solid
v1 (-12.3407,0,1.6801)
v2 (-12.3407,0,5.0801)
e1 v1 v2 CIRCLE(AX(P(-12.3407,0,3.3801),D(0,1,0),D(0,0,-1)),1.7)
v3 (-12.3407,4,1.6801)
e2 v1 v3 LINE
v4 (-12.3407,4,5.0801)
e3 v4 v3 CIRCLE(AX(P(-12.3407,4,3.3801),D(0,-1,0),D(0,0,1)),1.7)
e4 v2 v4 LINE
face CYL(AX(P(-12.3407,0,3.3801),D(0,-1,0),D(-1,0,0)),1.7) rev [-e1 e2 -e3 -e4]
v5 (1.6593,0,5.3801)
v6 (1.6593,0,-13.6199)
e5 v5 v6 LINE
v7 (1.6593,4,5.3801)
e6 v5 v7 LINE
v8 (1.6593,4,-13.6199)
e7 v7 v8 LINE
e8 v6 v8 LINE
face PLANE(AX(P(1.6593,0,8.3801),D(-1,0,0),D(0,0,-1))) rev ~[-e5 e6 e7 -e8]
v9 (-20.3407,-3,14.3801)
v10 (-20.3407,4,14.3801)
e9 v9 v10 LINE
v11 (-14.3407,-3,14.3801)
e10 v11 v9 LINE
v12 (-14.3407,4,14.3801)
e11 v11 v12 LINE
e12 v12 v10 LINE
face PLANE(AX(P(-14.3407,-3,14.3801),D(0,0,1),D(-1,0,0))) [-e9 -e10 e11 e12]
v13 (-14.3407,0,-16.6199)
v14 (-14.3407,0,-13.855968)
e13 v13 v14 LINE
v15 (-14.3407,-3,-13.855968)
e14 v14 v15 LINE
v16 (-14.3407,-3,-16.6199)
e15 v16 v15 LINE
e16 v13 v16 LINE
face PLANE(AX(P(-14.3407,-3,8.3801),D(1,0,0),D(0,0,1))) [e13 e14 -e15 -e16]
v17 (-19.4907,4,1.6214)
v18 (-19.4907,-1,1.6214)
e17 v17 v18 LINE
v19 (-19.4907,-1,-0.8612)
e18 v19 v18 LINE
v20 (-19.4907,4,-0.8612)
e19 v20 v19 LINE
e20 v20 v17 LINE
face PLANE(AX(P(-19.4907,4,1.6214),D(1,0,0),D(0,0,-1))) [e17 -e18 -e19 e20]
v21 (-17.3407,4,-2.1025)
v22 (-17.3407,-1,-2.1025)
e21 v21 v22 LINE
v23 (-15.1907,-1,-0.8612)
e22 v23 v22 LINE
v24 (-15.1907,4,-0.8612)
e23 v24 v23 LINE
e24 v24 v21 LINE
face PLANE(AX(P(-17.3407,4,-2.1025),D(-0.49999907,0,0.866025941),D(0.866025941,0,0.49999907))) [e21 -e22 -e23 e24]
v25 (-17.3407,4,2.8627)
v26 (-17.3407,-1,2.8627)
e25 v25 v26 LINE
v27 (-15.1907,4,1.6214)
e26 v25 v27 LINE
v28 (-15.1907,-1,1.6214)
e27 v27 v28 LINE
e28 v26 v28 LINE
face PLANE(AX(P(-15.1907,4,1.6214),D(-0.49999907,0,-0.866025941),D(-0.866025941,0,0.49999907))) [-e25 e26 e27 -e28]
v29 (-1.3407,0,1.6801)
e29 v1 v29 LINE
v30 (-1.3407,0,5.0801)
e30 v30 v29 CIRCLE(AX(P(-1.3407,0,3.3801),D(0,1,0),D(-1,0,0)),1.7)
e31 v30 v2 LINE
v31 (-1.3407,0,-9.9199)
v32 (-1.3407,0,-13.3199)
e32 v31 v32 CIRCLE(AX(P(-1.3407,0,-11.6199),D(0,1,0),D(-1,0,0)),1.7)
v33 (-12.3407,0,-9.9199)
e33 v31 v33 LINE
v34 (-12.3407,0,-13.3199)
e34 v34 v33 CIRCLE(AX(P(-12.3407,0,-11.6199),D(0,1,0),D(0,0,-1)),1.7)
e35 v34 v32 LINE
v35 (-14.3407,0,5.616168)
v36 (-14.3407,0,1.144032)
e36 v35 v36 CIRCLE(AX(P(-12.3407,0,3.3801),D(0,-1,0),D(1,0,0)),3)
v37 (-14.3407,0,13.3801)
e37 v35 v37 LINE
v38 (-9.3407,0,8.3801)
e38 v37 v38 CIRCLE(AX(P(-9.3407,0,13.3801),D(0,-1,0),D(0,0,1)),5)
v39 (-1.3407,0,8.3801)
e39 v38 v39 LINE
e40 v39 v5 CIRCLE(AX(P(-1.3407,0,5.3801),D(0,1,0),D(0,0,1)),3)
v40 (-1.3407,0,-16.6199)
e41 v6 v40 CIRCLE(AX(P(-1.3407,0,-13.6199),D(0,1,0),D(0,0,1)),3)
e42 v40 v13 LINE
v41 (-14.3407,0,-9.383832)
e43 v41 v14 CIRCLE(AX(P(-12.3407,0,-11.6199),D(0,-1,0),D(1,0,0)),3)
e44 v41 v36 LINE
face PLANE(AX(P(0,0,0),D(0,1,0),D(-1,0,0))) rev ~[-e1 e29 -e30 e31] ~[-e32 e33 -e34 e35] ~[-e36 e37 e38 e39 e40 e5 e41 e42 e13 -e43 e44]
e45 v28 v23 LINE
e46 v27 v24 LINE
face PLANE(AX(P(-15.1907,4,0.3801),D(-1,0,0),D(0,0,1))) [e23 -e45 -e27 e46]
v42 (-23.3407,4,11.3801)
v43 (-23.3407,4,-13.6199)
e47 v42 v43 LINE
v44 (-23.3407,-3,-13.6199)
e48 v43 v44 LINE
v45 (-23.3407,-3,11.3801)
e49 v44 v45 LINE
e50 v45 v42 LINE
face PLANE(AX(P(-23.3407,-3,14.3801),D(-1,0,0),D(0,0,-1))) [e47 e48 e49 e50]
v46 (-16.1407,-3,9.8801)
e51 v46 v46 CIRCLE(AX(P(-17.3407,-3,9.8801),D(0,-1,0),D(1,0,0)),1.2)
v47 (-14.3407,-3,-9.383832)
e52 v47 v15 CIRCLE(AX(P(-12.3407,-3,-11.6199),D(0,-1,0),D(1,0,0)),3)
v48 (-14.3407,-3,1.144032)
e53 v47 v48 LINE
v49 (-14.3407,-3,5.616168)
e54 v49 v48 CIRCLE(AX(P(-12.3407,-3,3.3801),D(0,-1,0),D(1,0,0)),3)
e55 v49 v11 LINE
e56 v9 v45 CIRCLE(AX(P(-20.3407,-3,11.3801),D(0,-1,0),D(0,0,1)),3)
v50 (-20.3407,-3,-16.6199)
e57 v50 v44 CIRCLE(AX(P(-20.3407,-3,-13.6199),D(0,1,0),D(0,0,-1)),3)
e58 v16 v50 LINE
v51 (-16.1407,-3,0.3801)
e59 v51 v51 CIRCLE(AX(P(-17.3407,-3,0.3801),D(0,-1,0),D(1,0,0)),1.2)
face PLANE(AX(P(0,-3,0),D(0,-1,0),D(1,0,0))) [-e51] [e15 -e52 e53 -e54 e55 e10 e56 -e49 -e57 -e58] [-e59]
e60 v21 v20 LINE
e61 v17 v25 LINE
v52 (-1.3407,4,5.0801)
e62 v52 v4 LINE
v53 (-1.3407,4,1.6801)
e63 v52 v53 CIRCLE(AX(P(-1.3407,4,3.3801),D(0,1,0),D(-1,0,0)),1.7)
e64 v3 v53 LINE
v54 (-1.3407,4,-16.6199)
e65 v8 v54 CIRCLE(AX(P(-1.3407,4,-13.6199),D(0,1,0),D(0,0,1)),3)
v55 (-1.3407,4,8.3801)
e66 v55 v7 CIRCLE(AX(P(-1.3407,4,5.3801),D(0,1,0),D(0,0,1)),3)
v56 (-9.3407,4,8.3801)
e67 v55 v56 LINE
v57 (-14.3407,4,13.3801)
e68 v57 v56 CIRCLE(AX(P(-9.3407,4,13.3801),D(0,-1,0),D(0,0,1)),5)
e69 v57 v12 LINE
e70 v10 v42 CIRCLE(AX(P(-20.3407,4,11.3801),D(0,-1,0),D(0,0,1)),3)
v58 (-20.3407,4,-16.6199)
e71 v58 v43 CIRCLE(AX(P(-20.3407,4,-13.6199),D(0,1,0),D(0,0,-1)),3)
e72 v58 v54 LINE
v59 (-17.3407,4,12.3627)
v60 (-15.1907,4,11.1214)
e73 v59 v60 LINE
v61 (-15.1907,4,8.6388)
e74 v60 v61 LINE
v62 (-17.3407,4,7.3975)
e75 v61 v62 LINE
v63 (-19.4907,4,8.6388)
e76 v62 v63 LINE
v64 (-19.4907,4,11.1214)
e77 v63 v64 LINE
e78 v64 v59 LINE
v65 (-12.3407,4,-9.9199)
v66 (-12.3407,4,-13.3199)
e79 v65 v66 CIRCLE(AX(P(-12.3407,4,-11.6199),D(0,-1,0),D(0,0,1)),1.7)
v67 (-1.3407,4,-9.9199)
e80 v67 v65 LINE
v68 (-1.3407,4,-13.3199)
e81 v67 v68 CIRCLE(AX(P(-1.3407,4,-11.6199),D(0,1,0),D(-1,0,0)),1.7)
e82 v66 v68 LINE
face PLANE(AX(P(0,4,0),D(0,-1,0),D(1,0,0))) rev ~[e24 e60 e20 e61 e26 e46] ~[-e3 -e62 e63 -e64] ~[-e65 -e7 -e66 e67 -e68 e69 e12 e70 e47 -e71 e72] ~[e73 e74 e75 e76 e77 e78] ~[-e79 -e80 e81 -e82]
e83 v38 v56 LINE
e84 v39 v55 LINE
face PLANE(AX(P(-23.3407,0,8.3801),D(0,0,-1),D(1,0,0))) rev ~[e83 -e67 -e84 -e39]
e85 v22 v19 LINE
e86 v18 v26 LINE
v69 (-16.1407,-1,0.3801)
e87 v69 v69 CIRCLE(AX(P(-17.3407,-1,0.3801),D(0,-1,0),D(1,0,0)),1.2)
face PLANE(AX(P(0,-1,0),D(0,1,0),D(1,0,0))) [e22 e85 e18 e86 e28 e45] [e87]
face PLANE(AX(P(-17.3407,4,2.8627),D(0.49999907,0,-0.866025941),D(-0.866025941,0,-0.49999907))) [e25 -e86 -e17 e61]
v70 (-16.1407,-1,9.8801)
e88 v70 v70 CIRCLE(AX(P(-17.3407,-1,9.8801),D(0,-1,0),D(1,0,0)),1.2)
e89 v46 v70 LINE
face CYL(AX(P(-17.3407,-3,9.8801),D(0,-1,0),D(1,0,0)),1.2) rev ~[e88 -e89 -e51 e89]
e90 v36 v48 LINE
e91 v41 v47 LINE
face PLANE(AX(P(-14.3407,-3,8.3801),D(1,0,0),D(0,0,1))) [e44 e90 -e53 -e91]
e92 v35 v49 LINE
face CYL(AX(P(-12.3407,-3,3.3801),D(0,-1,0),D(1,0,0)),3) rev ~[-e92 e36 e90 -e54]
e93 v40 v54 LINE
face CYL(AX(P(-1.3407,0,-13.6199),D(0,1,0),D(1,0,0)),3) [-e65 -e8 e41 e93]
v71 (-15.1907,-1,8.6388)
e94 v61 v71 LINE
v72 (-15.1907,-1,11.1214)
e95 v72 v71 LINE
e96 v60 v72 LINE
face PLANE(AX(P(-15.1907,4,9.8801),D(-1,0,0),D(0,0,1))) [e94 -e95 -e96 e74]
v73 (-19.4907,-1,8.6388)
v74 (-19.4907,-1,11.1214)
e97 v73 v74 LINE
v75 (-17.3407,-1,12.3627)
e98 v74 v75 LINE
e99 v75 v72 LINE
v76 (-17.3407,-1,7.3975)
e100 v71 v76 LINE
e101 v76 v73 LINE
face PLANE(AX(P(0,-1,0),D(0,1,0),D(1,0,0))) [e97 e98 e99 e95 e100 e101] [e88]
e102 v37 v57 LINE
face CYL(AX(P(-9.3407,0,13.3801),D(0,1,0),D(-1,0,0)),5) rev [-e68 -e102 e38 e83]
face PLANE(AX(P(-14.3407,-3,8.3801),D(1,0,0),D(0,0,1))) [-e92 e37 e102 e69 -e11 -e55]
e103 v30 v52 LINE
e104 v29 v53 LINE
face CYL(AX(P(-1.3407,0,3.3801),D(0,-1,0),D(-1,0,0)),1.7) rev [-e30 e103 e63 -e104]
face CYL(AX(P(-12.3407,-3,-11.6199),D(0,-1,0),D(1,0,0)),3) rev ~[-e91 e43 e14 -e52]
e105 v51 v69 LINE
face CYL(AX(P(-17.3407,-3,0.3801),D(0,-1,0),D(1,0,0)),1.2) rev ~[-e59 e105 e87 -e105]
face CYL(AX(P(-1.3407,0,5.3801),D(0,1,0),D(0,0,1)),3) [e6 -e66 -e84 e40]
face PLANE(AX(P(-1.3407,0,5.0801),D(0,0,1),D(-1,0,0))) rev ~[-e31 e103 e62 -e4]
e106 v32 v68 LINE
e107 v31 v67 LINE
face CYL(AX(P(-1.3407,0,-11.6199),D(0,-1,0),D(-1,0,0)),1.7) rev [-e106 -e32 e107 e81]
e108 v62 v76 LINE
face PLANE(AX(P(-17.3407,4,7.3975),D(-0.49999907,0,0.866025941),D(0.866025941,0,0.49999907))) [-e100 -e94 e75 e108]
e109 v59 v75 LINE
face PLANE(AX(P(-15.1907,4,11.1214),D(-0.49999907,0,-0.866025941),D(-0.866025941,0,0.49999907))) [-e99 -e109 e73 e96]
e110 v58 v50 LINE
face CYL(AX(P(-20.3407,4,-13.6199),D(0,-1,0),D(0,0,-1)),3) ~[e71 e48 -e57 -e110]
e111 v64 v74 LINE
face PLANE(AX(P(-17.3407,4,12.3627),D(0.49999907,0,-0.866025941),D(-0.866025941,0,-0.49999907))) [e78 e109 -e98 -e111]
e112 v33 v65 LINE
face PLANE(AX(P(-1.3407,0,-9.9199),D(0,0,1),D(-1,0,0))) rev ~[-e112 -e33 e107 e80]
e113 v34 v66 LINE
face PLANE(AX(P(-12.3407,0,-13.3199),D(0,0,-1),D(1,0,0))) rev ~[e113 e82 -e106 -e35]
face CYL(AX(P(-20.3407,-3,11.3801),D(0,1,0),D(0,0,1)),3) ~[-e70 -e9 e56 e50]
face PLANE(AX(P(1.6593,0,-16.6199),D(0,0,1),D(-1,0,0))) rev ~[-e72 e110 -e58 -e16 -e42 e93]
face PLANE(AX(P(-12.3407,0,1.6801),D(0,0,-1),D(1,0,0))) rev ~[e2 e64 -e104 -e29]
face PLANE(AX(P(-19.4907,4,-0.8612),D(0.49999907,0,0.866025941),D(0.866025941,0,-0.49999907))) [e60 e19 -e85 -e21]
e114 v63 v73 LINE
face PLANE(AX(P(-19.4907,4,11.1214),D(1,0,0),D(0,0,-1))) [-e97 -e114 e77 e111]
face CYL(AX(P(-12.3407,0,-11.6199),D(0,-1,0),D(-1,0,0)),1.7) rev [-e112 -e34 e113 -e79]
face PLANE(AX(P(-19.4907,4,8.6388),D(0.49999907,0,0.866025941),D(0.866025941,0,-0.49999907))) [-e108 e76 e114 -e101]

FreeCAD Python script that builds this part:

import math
import FreeCAD as App
import Part
import Sketcher
Q = App.Units.Quantity


def edges_at(feature, points):
    """Names of the edges that pass closest to the given points."""
    edges = feature.Shape.Edges
    near = lambda p: min(range(len(edges)), key=lambda i: edges[i].distToShape(Part.Vertex(*p))[0])
    return sorted({f"Edge{near(p) + 1}" for p in points})


def add_polygon(sketch, points):
    """Adds a closed chain of lines whose ends are joined by coincident constraints."""
    first, n = sketch.GeometryCount, len(points)
    for a, b in zip(points, points[1:] + points[:1]):
        sketch.addGeometry(Part.LineSegment(App.Vector(*a, 0), App.Vector(*b, 0)), False)
    for i in range(n):
        sketch.addConstraint(Sketcher.Constraint("Coincident", first + i, 2, first + (i + 1) % n, 1))

doc = App.newDocument("Part")
params = doc.addObject("Spreadsheet::Sheet", "Params")
for row, (alias, value) in enumerate([
    ("sketch1_radius", "1.7 mm"),
    ("sketch1_width", "25 mm"),
    ("sketch1_width2", "11 mm"),
    ("pad1_length", "4 mm"),
    ("sketch2_width", "9 mm"),
    ("sketch2_height", "25 mm"),
    ("pad2_length", "7 mm"),
    ("sketch3_height", "6 mm"),
    ("sketch3_width", "9 mm"),
    ("pad3_length", "7 mm"),
    ("fillet_radius", "5 mm"),
    ("sketch4_diameter", "2.4 mm"),
    ("pocket2_length", "5 mm"),
    ("fillet2_radius", "3 mm"),
    ("sketch6_diameter", "6 mm"),
    ("pocket3_length", "3 mm"),
], start=1):
    params.set(f"A{row}", alias)
    params.set(f"B{row}", "=" + value)
    params.setAlias(f"B{row}", alias)

body = doc.addObject("PartDesign::Body", "Body")

# Sketch on XZ plane
sketch1 = doc.addObject("Sketcher::SketchObject", "Sketch")
body.addObject(sketch1)
sketch1.AttachmentSupport = (doc.XZ_Plane, [""])
sketch1.MapMode = "FlatFace"
add_polygon(sketch1, [(-23.3407, -16.6199), (-23.3407, 8.3801), (1.6593, 8.3801), (1.6593, -16.6199)])  # lines 0-3
sketch1.addGeometry(Part.ArcOfCircle(Part.Circle(App.Vector(-1.3407, -11.6199, 0), App.Vector(0, 0, 1), 1.7), math.radians(-90), math.radians(90)), False)  # 4
sketch1.addGeometry(Part.LineSegment(App.Vector(-1.3407, -9.9199, 0), App.Vector(-12.3407, -9.9199, 0)), False)  # 5
sketch1.addGeometry(Part.ArcOfCircle(Part.Circle(App.Vector(-12.3407, -11.6199, 0), App.Vector(0, 0, 1), 1.7), math.radians(90), math.radians(270)), False)  # 6
sketch1.addGeometry(Part.LineSegment(App.Vector(-12.3407, -13.3199, 0), App.Vector(-1.3407, -13.3199, 0)), False)  # 7
sketch1.addGeometry(Part.ArcOfCircle(Part.Circle(App.Vector(-1.3407, 3.3801, 0), App.Vector(0, 0, 1), 1.7), math.radians(-90), math.radians(90)), False)  # 8
sketch1.addGeometry(Part.LineSegment(App.Vector(-1.3407, 5.0801, 0), App.Vector(-12.3407, 5.0801, 0)), False)  # 9
sketch1.addGeometry(Part.ArcOfCircle(Part.Circle(App.Vector(-12.3407, 3.3801, 0), App.Vector(0, 0, 1), 1.7), math.radians(90), math.radians(270)), False)  # 10
sketch1.addGeometry(Part.LineSegment(App.Vector(-12.3407, 1.6801, 0), App.Vector(-1.3407, 1.6801, 0)), False)  # 11
sketch1.addConstraint([
    Sketcher.Constraint("Tangent", 4, 2, 5, 1),
    Sketcher.Constraint("Tangent", 5, 2, 6, 1),
    Sketcher.Constraint("Tangent", 6, 2, 7, 1),
    Sketcher.Constraint("Tangent", 7, 2, 4, 1),
    Sketcher.Constraint("Tangent", 8, 2, 9, 1),
    Sketcher.Constraint("Tangent", 9, 2, 10, 1),
    Sketcher.Constraint("Tangent", 10, 2, 11, 1),
    Sketcher.Constraint("Tangent", 11, 2, 8, 1),
    Sketcher.Constraint("Vertical", 0),
    Sketcher.Constraint("Horizontal", 1),
    Sketcher.Constraint("Vertical", 2),
    Sketcher.Constraint("Horizontal", 3),
    Sketcher.Constraint("Horizontal", 5),
    Sketcher.Constraint("Horizontal", 7),
    Sketcher.Constraint("Horizontal", 9),
    Sketcher.Constraint("Horizontal", 11),
    Sketcher.Constraint("Equal", 6, 8),
    Sketcher.Constraint("Vertical", 4, 3, 8, 3),
    Sketcher.Constraint("Vertical", 6, 3, 10, 3),
    Sketcher.Constraint("Equal", 3, 0),
    Sketcher.Constraint("Radius", 4, Q("1.7 mm")),
    Sketcher.Constraint("DistanceX", 1, 1, 1, 2, Q("25 mm")),
    Sketcher.Constraint("DistanceX", 5, 2, 5, 1, Q("11 mm")),
    Sketcher.Constraint("DistanceY", 4, 3, 8, 3, Q("15 mm")),
    Sketcher.Constraint("DistanceX", 0, 2, 10, 3, Q("11 mm")),
    Sketcher.Constraint("DistanceY", 10, 3, 0, 2, Q("5 mm")),
    Sketcher.Constraint("DistanceY", 4, 3, -1, 1, Q("11.62 mm")),
    Sketcher.Constraint("DistanceX", 4, 3, -1, 1, Q("1.3407 mm")),
])
sketch1.setExpression("Constraints[24]", "Params.sketch1_radius")
sketch1.setExpression("Constraints[25]", "Params.sketch1_width")
sketch1.setExpression("Constraints[26]", "Params.sketch1_width2")
pad1 = doc.addObject("PartDesign::Pad", "Pad")
body.addObject(pad1)
pad1.Profile = sketch1
pad1.setExpression("Length", "Params.pad1_length")
pad1.Reversed = True

# Sketch on XZ plane
sketch2 = doc.addObject("Sketcher::SketchObject", "Sketch001")
body.addObject(sketch2)
sketch2.AttachmentSupport = (doc.XZ_Plane, [""])
sketch2.MapMode = "FlatFace"
sketch2.AttachmentOffset = App.Placement(App.Vector(0, 0, -4), App.Rotation())
add_polygon(sketch2, [(-14.3407, 8.3801), (-14.3407, -16.6199), (-23.3407, -16.6199), (-23.3407, 8.3801)])  # lines 0-3
sketch2.addConstraint([
    Sketcher.Constraint("Vertical", 0),
    Sketcher.Constraint("Horizontal", 1),
    Sketcher.Constraint("Vertical", 2),
    Sketcher.Constraint("Horizontal", 3),
    Sketcher.Constraint("DistanceX", 1, 2, 1, 1, Q("9 mm")),
    Sketcher.Constraint("DistanceY", 0, 2, 0, 1, Q("25 mm")),
    Sketcher.Constraint("DistanceY", 0, 2, -1, 1, Q("16.62 mm")),
    Sketcher.Constraint("DistanceX", 0, 2, -1, 1, Q("14.3407 mm")),
])
sketch2.setExpression("Constraints[8]", "Params.sketch2_width")
sketch2.setExpression("Constraints[9]", "Params.sketch2_height")
pad2 = doc.addObject("PartDesign::Pad", "Pad001")
body.addObject(pad2)
pad2.Profile = sketch2
pad2.setExpression("Length", "Params.pad2_length")

# Sketch on XZ plane
sketch3 = doc.addObject("Sketcher::SketchObject", "Sketch002")
body.addObject(sketch3)
sketch3.AttachmentSupport = (doc.XZ_Plane, [""])
sketch3.MapMode = "FlatFace"
sketch3.AttachmentOffset = App.Placement(App.Vector(0, 0, 3), App.Rotation())
add_polygon(sketch3, [(-23.3407, 8.3801), (-14.3407, 8.3801), (-14.3407, 14.3801), (-23.3407, 14.3801)])  # lines 0-3
sketch3.addConstraint([
    Sketcher.Constraint("Horizontal", 0),
    Sketcher.Constraint("Vertical", 1),
    Sketcher.Constraint("Horizontal", 2),
    Sketcher.Constraint("Vertical", 3),
    Sketcher.Constraint("DistanceY", 1, 1, 1, 2, Q("6 mm")),
    Sketcher.Constraint("DistanceX", 0, 1, 0, 2, Q("9 mm")),
    Sketcher.Constraint("DistanceY", -1, 1, 0, 2, Q("8.38 mm")),
    Sketcher.Constraint("DistanceX", 0, 2, -1, 1, Q("14.3407 mm")),
])
sketch3.setExpression("Constraints[8]", "Params.sketch3_height")
sketch3.setExpression("Constraints[9]", "Params.sketch3_width")
pad3 = doc.addObject("PartDesign::Pad", "Pad002")
body.addObject(pad3)
pad3.Profile = sketch3
pad3.setExpression("Length", "Params.pad3_length")
pad3.Reversed = True
doc.recompute()

fillet = doc.addObject("PartDesign::Fillet", "Fillet")
body.addObject(fillet)
fillet.Base = (pad3, edges_at(pad3, [(-14.341, 2, 8.38)]))
fillet.setExpression("Radius", "Params.fillet_radius")

# Sketch on XZ plane
sketch4 = doc.addObject("Sketcher::SketchObject", "Sketch003")
body.addObject(sketch4)
sketch4.AttachmentSupport = (doc.XZ_Plane, [""])
sketch4.MapMode = "FlatFace"
sketch4.AttachmentOffset = App.Placement(App.Vector(0, 0, 3), App.Rotation())
sketch4.addGeometry([
    Part.Circle(App.Vector(-17.3407, 9.8801, 0), App.Vector(0, 0, 1), 1.2),
    Part.Circle(App.Vector(-17.3407, 0.3801, 0), App.Vector(0, 0, 1), 1.2),
], False)
sketch4.addConstraint([
    Sketcher.Constraint("Equal", 0, 1),
    Sketcher.Constraint("Vertical", 0, 3, 1, 3),
    Sketcher.Constraint("Diameter", 0, Q("2.4 mm")),
    Sketcher.Constraint("DistanceY", 1, 3, 0, 3, Q("9.5 mm")),
    Sketcher.Constraint("DistanceY", -1, 1, 0, 3, Q("9.88 mm")),
    Sketcher.Constraint("DistanceX", 0, 3, -1, 1, Q("17.3407 mm")),
])
sketch4.setExpression("Constraints[2]", "Params.sketch4_diameter")
pocket1 = doc.addObject("PartDesign::Pocket", "Pocket")
body.addObject(pocket1)
pocket1.Profile = sketch4
pocket1.Type = "ThroughAll"

# Sketch on XZ plane
sketch5 = doc.addObject("Sketcher::SketchObject", "Sketch004")
body.addObject(sketch5)
sketch5.AttachmentSupport = (doc.XZ_Plane, [""])
sketch5.MapMode = "FlatFace"
sketch5.AttachmentOffset = App.Placement(App.Vector(0, 0, -4), App.Rotation())
add_polygon(sketch5, [(-15.1907, 11.1214), (-15.1907, 8.6388), (-17.3407, 7.3975), (-19.4907, 8.6388), (-19.4907, 11.1214), (-17.3407, 12.3627)])  # lines 0-5
add_polygon(sketch5, [(-15.1907, 1.6214), (-15.1907, -0.8612), (-17.3407, -2.1025), (-19.4907, -0.8612), (-19.4907, 1.6214), (-17.3407, 2.8627)])  # lines 6-11
sketch5.addConstraint([
    Sketcher.Constraint("Vertical", 0),
    Sketcher.Constraint("Vertical", 3),
    Sketcher.Constraint("Vertical", 6),
    Sketcher.Constraint("Vertical", 9),
    Sketcher.Constraint("Parallel", 1, 4),
    Sketcher.Constraint("Parallel", 2, 5),
    Sketcher.Constraint("Parallel", 4, 7),
    Sketcher.Constraint("Parallel", 5, 8),
    Sketcher.Constraint("Parallel", 7, 10),
    Sketcher.Constraint("Parallel", 8, 11),
    Sketcher.Constraint("Horizontal", 0, 2, 2, 2),
    Sketcher.Constraint("Horizontal", 3, 2, 5, 2),
    Sketcher.Constraint("Horizontal", 6, 2, 8, 2),
    Sketcher.Constraint("Horizontal", 9, 2, 11, 2),
    Sketcher.Constraint("Vertical", 1, 2, 4, 2),
    Sketcher.Constraint("Vertical", 5, 2, 6, 2),
    Sketcher.Constraint("Vertical", 4, 2, 7, 2),
    Sketcher.Constraint("Equal", 3, 6),
    Sketcher.Constraint("DistanceX", 2, 2, 0, 2, Q("4.3 mm")),
    Sketcher.Constraint("Angle", 1, Q("-150 deg")),
    Sketcher.Constraint("DistanceY", 6, 2, 0, 2, Q("9.5 mm")),
    Sketcher.Constraint("DistanceY", 0, 2, 0, 1, Q("2.4826 mm")),
    Sketcher.Constraint("DistanceX", 0, 2, -1, 1, Q("15.1907 mm")),
    Sketcher.Constraint("DistanceY", -1, 1, 0, 2, Q("8.6388 mm")),
])
pocket2 = doc.addObject("PartDesign::Pocket", "Pocket001")
body.addObject(pocket2)
pocket2.Profile = sketch5
pocket2.setExpression("Length", "Params.pocket2_length")
pocket2.Reversed = True
doc.recompute()

fillet2 = doc.addObject("PartDesign::Fillet", "Fillet001")
body.addObject(fillet2)
fillet2.Base = (pocket2, edges_at(pocket2, [
    (-23.341, 0.5, 14.38),
    (-23.341, 0.5, -16.62),
    (1.659, 2, 8.38),
    (1.659, 2, -16.62),
]))
fillet2.setExpression("Radius", "Params.fillet2_radius")

# Sketch on XZ plane
sketch6 = doc.addObject("Sketcher::SketchObject", "Sketch005")
body.addObject(sketch6)
sketch6.AttachmentSupport = (doc.XZ_Plane, [""])
sketch6.MapMode = "FlatFace"
sketch6.AttachmentOffset = App.Placement(App.Vector(0, 0, 3), App.Rotation())
sketch6.addGeometry([
    Part.Circle(App.Vector(-12.3407, 3.3801, 0), App.Vector(0, 0, 1), 3),
    Part.Circle(App.Vector(-12.3407, -11.6199, 0), App.Vector(0, 0, 1), 3),
], False)
sketch6.addConstraint([
    Sketcher.Constraint("Equal", 0, 1),
    Sketcher.Constraint("Vertical", 0, 3, 1, 3),
    Sketcher.Constraint("Diameter", 0, Q("6 mm")),
    Sketcher.Constraint("DistanceY", 1, 3, 0, 3, Q("15 mm")),
    Sketcher.Constraint("DistanceY", -1, 1, 0, 3, Q("3.38 mm")),
    Sketcher.Constraint("DistanceX", 0, 3, -1, 1, Q("12.3407 mm")),
])
sketch6.setExpression("Constraints[2]", "Params.sketch6_diameter")
pocket3 = doc.addObject("PartDesign::Pocket", "Pocket002")
body.addObject(pocket3)
pocket3.Profile = sketch6
pocket3.setExpression("Length", "Params.pocket3_length")

doc.recompute()
